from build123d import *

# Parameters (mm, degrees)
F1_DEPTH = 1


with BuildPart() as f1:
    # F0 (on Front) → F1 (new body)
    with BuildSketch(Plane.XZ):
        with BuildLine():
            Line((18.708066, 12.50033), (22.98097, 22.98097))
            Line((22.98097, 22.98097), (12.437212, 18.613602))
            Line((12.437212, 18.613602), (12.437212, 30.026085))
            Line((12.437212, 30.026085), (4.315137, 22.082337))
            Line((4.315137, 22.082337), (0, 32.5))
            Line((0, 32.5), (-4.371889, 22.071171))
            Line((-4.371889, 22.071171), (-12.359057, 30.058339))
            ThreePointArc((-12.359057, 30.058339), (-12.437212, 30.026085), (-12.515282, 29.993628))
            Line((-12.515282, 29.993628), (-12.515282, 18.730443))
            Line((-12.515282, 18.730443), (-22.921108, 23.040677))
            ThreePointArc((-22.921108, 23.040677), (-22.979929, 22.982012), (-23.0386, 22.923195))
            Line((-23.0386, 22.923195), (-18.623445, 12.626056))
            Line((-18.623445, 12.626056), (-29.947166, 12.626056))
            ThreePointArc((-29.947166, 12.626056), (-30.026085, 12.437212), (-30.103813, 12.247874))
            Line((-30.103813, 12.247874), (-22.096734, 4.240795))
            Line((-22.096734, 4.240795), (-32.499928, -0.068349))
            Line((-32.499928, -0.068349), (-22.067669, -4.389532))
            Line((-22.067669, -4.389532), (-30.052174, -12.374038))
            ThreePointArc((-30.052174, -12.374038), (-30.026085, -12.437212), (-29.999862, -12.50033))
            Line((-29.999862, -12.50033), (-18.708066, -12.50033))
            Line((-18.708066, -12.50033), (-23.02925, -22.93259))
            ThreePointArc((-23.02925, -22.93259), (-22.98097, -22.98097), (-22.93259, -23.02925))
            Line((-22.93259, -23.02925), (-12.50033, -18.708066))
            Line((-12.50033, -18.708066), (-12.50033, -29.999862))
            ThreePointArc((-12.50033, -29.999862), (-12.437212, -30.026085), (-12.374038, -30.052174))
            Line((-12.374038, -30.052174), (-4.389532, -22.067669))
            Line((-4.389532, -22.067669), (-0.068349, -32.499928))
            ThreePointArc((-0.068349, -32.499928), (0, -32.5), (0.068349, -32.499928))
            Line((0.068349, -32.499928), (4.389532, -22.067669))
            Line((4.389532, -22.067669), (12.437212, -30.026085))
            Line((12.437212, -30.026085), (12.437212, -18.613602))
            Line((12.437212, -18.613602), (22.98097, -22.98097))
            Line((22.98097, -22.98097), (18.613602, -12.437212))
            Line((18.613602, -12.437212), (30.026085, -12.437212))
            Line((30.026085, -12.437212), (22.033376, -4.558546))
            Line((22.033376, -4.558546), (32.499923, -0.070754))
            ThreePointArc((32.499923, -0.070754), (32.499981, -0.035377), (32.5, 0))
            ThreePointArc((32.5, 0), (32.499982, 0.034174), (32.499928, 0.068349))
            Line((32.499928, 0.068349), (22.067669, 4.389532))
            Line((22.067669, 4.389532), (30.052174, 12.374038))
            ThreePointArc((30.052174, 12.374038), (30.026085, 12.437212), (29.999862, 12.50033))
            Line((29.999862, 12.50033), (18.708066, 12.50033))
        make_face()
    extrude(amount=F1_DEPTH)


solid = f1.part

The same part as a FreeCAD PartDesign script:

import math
import FreeCAD as App
import Part
import Sketcher

V = App.Vector

doc = App.newDocument("Part")
body = doc.addObject("PartDesign::Body", "Body")

sketch1 = body.newObject("Sketcher::SketchObject", "Sketch")
sketch1.AttachmentSupport = (doc.getObject("XZ_Plane"), [""])
sketch1.MapMode = "FlatFace"
sketch1.addGeometry(Part.LineSegment(V(18.708066, 12.50033, 0), V(22.98097, 22.98097, 0)), False)
sketch1.addGeometry(Part.LineSegment(V(22.98097, 22.98097, 0), V(12.437212, 18.613602, 0)), False)
sketch1.addGeometry(Part.LineSegment(V(12.437212, 18.613602, 0), V(12.437212, 30.026085, 0)), False)
sketch1.addGeometry(Part.LineSegment(V(12.437212, 30.026085, 0), V(4.315137, 22.082337, 0)), False)
sketch1.addGeometry(Part.LineSegment(V(4.315137, 22.082337, 0), V(0, 32.5, 0)), False)
sketch1.addGeometry(Part.LineSegment(V(0, 32.5, 0), V(-4.371889, 22.071171, 0)), False)
sketch1.addGeometry(Part.LineSegment(V(-4.371889, 22.071171, 0), V(-12.359057, 30.058339, 0)), False)
sketch1.addGeometry(Part.ArcOfCircle(Part.Circle(V(-0.006885, 0.016847, 0), V(0, 0, 1), 32.481801), math.radians(112.351014), math.radians(112.64929)), False)
sketch1.addGeometry(Part.LineSegment(V(-12.515282, 29.993628, 0), V(-12.515282, 18.730443, 0)), False)
sketch1.addGeometry(Part.LineSegment(V(-12.515282, 18.730443, 0), V(-22.921108, 23.040677, 0)), False)
sketch1.addGeometry(Part.ArcOfCircle(Part.Circle(V(-0.127899, 0.128035, 0), V(0, 0, 1), 32.319027), math.radians(134.850283), math.radians(135.14484)), False)
sketch1.addGeometry(Part.LineSegment(V(-23.0386, 22.923195, 0), V(-18.623445, 12.626056, 0)), False)
sketch1.addGeometry(Part.LineSegment(V(-18.623445, 12.626056, 0), V(-29.947166, 12.626056, 0)), False)
sketch1.addGeometry(Part.ArcOfCircle(Part.Circle(V(-0.010471, 0.004426, 0), V(0, 0, 1), 32.488633), math.radians(157.139192), math.radians(157.861096)), False)
sketch1.addGeometry(Part.LineSegment(V(-30.103813, 12.247874, 0), V(-22.096734, 4.240795, 0)), False)
sketch1.addGeometry(Part.LineSegment(V(-22.096734, 4.240795, 0), V(-32.499928, -0.068349, 0)), False)
sketch1.addGeometry(Part.LineSegment(V(-32.499928, -0.068349, 0), V(-22.067669, -4.389532, 0)), False)
sketch1.addGeometry(Part.LineSegment(V(-22.067669, -4.389532, 0), V(-30.052174, -12.374038, 0)), False)
sketch1.addGeometry(Part.ArcOfCircle(Part.Circle(V(-0.308037, -0.12756, 0), V(0, 0, 1), 32.166596), math.radians(-157.62169), math.radians(-157.378201)), False)
sketch1.addGeometry(Part.LineSegment(V(-29.999862, -12.50033, 0), V(-18.708066, -12.50033, 0)), False)
sketch1.addGeometry(Part.LineSegment(V(-18.708066, -12.50033, 0), V(-23.02925, -22.93259, 0)), False)
sketch1.addGeometry(Part.ArcOfCircle(Part.Circle(V(0.376944, 0.376944, 0), V(0, 0, 1), 33.033079), math.radians(-135.118551), math.radians(-134.881449)), False)
sketch1.addGeometry(Part.LineSegment(V(-22.93259, -23.02925, 0), V(-12.50033, -18.708066, 0)), False)
sketch1.addGeometry(Part.LineSegment(V(-12.50033, -18.708066, 0), V(-12.50033, -29.999862, 0)), False)
sketch1.addGeometry(Part.ArcOfCircle(Part.Circle(V(-0.12756, -0.308037, 0), V(0, 0, 1), 32.166596), math.radians(-112.621799), math.radians(-112.37831)), False)
sketch1.addGeometry(Part.LineSegment(V(-12.374038, -30.052174, 0), V(-4.389532, -22.067669, 0)), False)
sketch1.addGeometry(Part.LineSegment(V(-4.389532, -22.067669, 0), V(-0.068349, -32.499928, 0)), False)
sketch1.addGeometry(Part.ArcOfCircle(Part.Circle(V(0, -0.058396, 0), V(0, 0, 1), 32.441604), math.radians(-90.120713), math.radians(-89.879287)), False)
sketch1.addGeometry(Part.LineSegment(V(0.068349, -32.499928, 0), V(4.389532, -22.067669, 0)), False)
sketch1.addGeometry(Part.LineSegment(V(4.389532, -22.067669, 0), V(12.437212, -30.026085, 0)), False)
sketch1.addGeometry(Part.LineSegment(V(12.437212, -30.026085, 0), V(12.437212, -18.613602, 0)), False)
sketch1.addGeometry(Part.LineSegment(V(12.437212, -18.613602, 0), V(22.98097, -22.98097, 0)), False)
sketch1.addGeometry(Part.LineSegment(V(22.98097, -22.98097, 0), V(18.613602, -12.437212, 0)), False)
sketch1.addGeometry(Part.LineSegment(V(18.613602, -12.437212, 0), V(30.026085, -12.437212, 0)), False)
sketch1.addGeometry(Part.LineSegment(V(30.026085, -12.437212, 0), V(22.033376, -4.558546, 0)), False)
sketch1.addGeometry(Part.LineSegment(V(22.033376, -4.558546, 0), V(32.499923, -0.070754, 0)), False)
sketch1.addGeometry(Part.ArcOfCircle(Part.Circle(V(0.409366, -0.000454, 0), V(0, 0, 1), 32.090634), math.radians(-0.125517), math.radians(0.00081)), False)
sketch1.addGeometry(Part.ArcOfCircle(Part.Circle(V(0.05742, -0.000001, 0), V(0, 0, 1), 32.44258), math.radians(0.000002), math.radians(0.120711)), False)
sketch1.addGeometry(Part.LineSegment(V(32.499928, 0.068349, 0), V(22.067669, 4.389532, 0)), False)
sketch1.addGeometry(Part.LineSegment(V(22.067669, 4.389532, 0), V(30.052174, 12.374038, 0)), False)
sketch1.addGeometry(Part.ArcOfCircle(Part.Circle(V(0.308037, 0.12756, 0), V(0, 0, 1), 32.166596), math.radians(22.37831), math.radians(22.621799)), False)
sketch1.addGeometry(Part.LineSegment(V(29.999862, 12.50033, 0), V(18.708066, 12.50033, 0)), False)
sketch1.addConstraint(Sketcher.Constraint("Coincident", 0, 2, 1, 1))
sketch1.addConstraint(Sketcher.Constraint("Coincident", 1, 2, 2, 1))
sketch1.addConstraint(Sketcher.Constraint("Coincident", 2, 2, 3, 1))
sketch1.addConstraint(Sketcher.Constraint("Coincident", 3, 2, 4, 1))
sketch1.addConstraint(Sketcher.Constraint("Coincident", 4, 2, 5, 1))
sketch1.addConstraint(Sketcher.Constraint("Coincident", 5, 2, 6, 1))
sketch1.addConstraint(Sketcher.Constraint("Coincident", 6, 2, 7, 1))
sketch1.addConstraint(Sketcher.Constraint("Coincident", 7, 2, 8, 1))
sketch1.addConstraint(Sketcher.Constraint("Coincident", 8, 2, 9, 1))
sketch1.addConstraint(Sketcher.Constraint("Coincident", 9, 2, 10, 1))
sketch1.addConstraint(Sketcher.Constraint("Coincident", 10, 2, 11, 1))
sketch1.addConstraint(Sketcher.Constraint("Coincident", 11, 2, 12, 1))
sketch1.addConstraint(Sketcher.Constraint("Coincident", 12, 2, 13, 1))
sketch1.addConstraint(Sketcher.Constraint("Coincident", 13, 2, 14, 1))
sketch1.addConstraint(Sketcher.Constraint("Coincident", 14, 2, 15, 1))
sketch1.addConstraint(Sketcher.Constraint("Coincident", 15, 2, 16, 1))
sketch1.addConstraint(Sketcher.Constraint("Coincident", 16, 2, 17, 1))
sketch1.addConstraint(Sketcher.Constraint("Coincident", 17, 2, 18, 1))
sketch1.addConstraint(Sketcher.Constraint("Coincident", 18, 2, 19, 1))
sketch1.addConstraint(Sketcher.Constraint("Coincident", 19, 2, 20, 1))
sketch1.addConstraint(Sketcher.Constraint("Coincident", 20, 2, 21, 1))
sketch1.addConstraint(Sketcher.Constraint("Coincident", 21, 2, 22, 1))
sketch1.addConstraint(Sketcher.Constraint("Coincident", 22, 2, 23, 1))
sketch1.addConstraint(Sketcher.Constraint("Coincident", 23, 2, 24, 1))
sketch1.addConstraint(Sketcher.Constraint("Coincident", 24, 2, 25, 1))
sketch1.addConstraint(Sketcher.Constraint("Coincident", 25, 2, 26, 1))
sketch1.addConstraint(Sketcher.Constraint("Coincident", 26, 2, 27, 1))
sketch1.addConstraint(Sketcher.Constraint("Coincident", 27, 2, 28, 1))
sketch1.addConstraint(Sketcher.Constraint("Coincident", 28, 2, 29, 1))
sketch1.addConstraint(Sketcher.Constraint("Coincident", 29, 2, 30, 1))
sketch1.addConstraint(Sketcher.Constraint("Coincident", 30, 2, 31, 1))
sketch1.addConstraint(Sketcher.Constraint("Coincident", 31, 2, 32, 1))
sketch1.addConstraint(Sketcher.Constraint("Coincident", 32, 2, 33, 1))
sketch1.addConstraint(Sketcher.Constraint("Coincident", 33, 2, 34, 1))
sketch1.addConstraint(Sketcher.Constraint("Coincident", 34, 2, 35, 1))
sketch1.addConstraint(Sketcher.Constraint("Coincident", 35, 2, 36, 1))
sketch1.addConstraint(Sketcher.Constraint("Coincident", 36, 2, 37, 1))
sketch1.addConstraint(Sketcher.Constraint("Coincident", 37, 2, 38, 1))
sketch1.addConstraint(Sketcher.Constraint("Coincident", 38, 2, 39, 1))
sketch1.addConstraint(Sketcher.Constraint("Coincident", 39, 2, 40, 1))
sketch1.addConstraint(Sketcher.Constraint("Coincident", 40, 2, 41, 1))
sketch1.addConstraint(Sketcher.Constraint("Coincident", 41, 2, 0, 1))
sketch1.addConstraint(Sketcher.Constraint("Vertical", 2))
sketch1.addConstraint(Sketcher.Constraint("Vertical", 8))
sketch1.addConstraint(Sketcher.Constraint("Horizontal", 12))
sketch1.addConstraint(Sketcher.Constraint("Horizontal", 19))
sketch1.addConstraint(Sketcher.Constraint("Vertical", 23))
sketch1.addConstraint(Sketcher.Constraint("Vertical", 30))
sketch1.addConstraint(Sketcher.Constraint("Horizontal", 33))
sketch1.addConstraint(Sketcher.Constraint("Horizontal", 41))
sketch1.addConstraint(Sketcher.Constraint("PointOnObject", 27, 3, -2))
sketch1.addConstraint(Sketcher.Constraint("PointOnObject", 37, 3, -1))
sketch1.addConstraint(Sketcher.Constraint("PointOnObject", 4, 2, -2))
sketch1.addConstraint(Sketcher.Constraint("PointOnObject", 36, 2, -1))
sketch1.addConstraint(Sketcher.Constraint("DistanceY", -1, 1, 4, 2, 32.5))
sketch1.addConstraint(Sketcher.Constraint("DistanceX", -1, 1, 36, 2, 32.5))
sketch1.addConstraint(Sketcher.Constraint("Radius", 7, 32.481801))
sketch1.addConstraint(Sketcher.Constraint("Radius", 21, 33.033079))
sketch1.addConstraint(Sketcher.Constraint("Radius", 37, 32.44258))
sketch1.addConstraint(Sketcher.Constraint("Radius", 10, 32.319027))
sketch1.addConstraint(Sketcher.Constraint("Radius", 13, 32.488633))
sketch1.addConstraint(Sketcher.Constraint("Radius", 18, 32.166596))
sketch1.addConstraint(Sketcher.Constraint("Radius", 24, 32.166596))
sketch1.addConstraint(Sketcher.Constraint("Radius", 27, 32.441604))
sketch1.addConstraint(Sketcher.Constraint("Radius", 36, 32.090634))
sketch1.addConstraint(Sketcher.Constraint("Radius", 40, 32.166596))
sketch1.addConstraint(Sketcher.Constraint("DistanceX", 12, 2, 12, 1, 11.323721))
sketch1.addConstraint(Sketcher.Constraint("DistanceX", 10, 3, -1, 1, 0.127899))
sketch1.addConstraint(Sketcher.Constraint("DistanceY", -1, 1, 1, 2, 18.613602))
sketch1.addConstraint(Sketcher.Constraint("DistanceX", 10, 2, -1, 1, 23.0386))
sketch1.addConstraint(Sketcher.Constraint("DistanceY", 30, 2, -1, 1, 18.613602))
sketch1.addConstraint(Sketcher.Constraint("DistanceX", -1, 1, 32, 2, 18.613602))
sketch1.addConstraint(Sketcher.Constraint("DistanceY", 36, 3, 7, 3, 0.0173))
sketch1.addConstraint(Sketcher.Constraint("DistanceX", 40, 3, 3, 2, 4.0071))
sketch1.addConstraint(Sketcher.Constraint("DistanceX", 5, 2, 1, 2, 16.809101))
sketch1.addConstraint(Sketcher.Constraint("DistanceY", 14, 2, 10, 2, 18.6824))
sketch1.addConstraint(Sketcher.Constraint("DistanceX", 26, 2, 27, 2, 0.136698))
sketch1.addConstraint(Sketcher.Constraint("DistanceY", 31, 2, 28, 2, 0.913301))
sketch1.addConstraint(Sketcher.Constraint("Distance", 1, 11.412482))
sketch1.addConstraint(Sketcher.Constraint("Distance", 6, 11.295561))
sketch1.addConstraint(Sketcher.Constraint("Distance", 11, 11.203779))
sketch1.addConstraint(Sketcher.Constraint("Distance", 14, 11.32372))
sketch1.addConstraint(Sketcher.Constraint("Distance", 31, 11.412482))
sketch1.addConstraint(Sketcher.Constraint("Distance", 32, 11.412482))
sketch1.addConstraint(Sketcher.Constraint("DistanceX", 19, 1, 19, 2, 11.291796))
sketch1.addConstraint(Sketcher.Constraint("DistanceX", 33, 1, 33, 2, 11.412483))
sketch1.addConstraint(Sketcher.Constraint("DistanceX", 41, 2, 41, 1, 11.291796))
sketch1.addConstraint(Sketcher.Constraint("DistanceY", 2, 1, 2, 2, 11.412483))
sketch1.addConstraint(Sketcher.Constraint("DistanceY", 8, 2, 8, 1, 11.263185))
sketch1.addConstraint(Sketcher.Constraint("DistanceY", 23, 2, 23, 1, 11.291796))
sketch1.addConstraint(Sketcher.Constraint("DistanceY", 30, 1, 30, 2, 11.412483))
sketch1.addConstraint(Sketcher.Constraint("DistanceX", 13, 3, -1, 1, 0.010471))
sketch1.addConstraint(Sketcher.Constraint("DistanceY", 18, 3, -1, 1, 0.12756))
sketch1.addConstraint(Sketcher.Constraint("DistanceX", 24, 3, -1, 1, 0.12756))
sketch1.addConstraint(Sketcher.Constraint("DistanceY", -1, 1, 40, 3, 0.12756))
sketch1.addConstraint(Sketcher.Constraint("DistanceX", -1, 1, 0, 2, 22.98097))
sketch1.addConstraint(Sketcher.Constraint("DistanceY", -1, 1, 0, 2, 22.98097))
sketch1.addConstraint(Sketcher.Constraint("DistanceY", -1, 1, 5, 2, 22.071171))
sketch1.addConstraint(Sketcher.Constraint("DistanceY", -1, 1, 6, 2, 30.058339))
sketch1.addConstraint(Sketcher.Constraint("DistanceX", 7, 2, -1, 1, 12.515282))
sketch1.addConstraint(Sketcher.Constraint("DistanceX", 9, 2, -1, 1, 22.921108))
sketch1.addConstraint(Sketcher.Constraint("DistanceY", 15, 2, -1, 1, 0.068349))
sketch1.addConstraint(Sketcher.Constraint("DistanceX", 16, 2, -1, 1, 22.067669))
sketch1.addConstraint(Sketcher.Constraint("DistanceX", 18, 2, -1, 1, 29.999862))
sketch1.addConstraint(Sketcher.Constraint("DistanceY", 18, 2, -1, 1, 12.50033))
sketch1.addConstraint(Sketcher.Constraint("DistanceX", 20, 2, -1, 1, 23.02925))
sketch1.addConstraint(Sketcher.Constraint("DistanceY", 20, 2, -1, 1, 22.93259))
sketch1.addConstraint(Sketcher.Constraint("DistanceX", 21, 2, -1, 1, 22.93259))
sketch1.addConstraint(Sketcher.Constraint("DistanceX", 22, 2, -1, 1, 12.50033))
sketch1.addConstraint(Sketcher.Constraint("DistanceY", 23, 2, -1, 1, 29.999862))
sketch1.addConstraint(Sketcher.Constraint("DistanceX", 24, 2, -1, 1, 12.374038))
sketch1.addConstraint(Sketcher.Constraint("DistanceY", 25, 2, -1, 1, 22.067669))
sketch1.addConstraint(Sketcher.Constraint("DistanceX", 26, 2, -1, 1, 0.068349))
sketch1.addConstraint(Sketcher.Constraint("DistanceY", 28, 2, -1, 1, 22.067669))
sketch1.addConstraint(Sketcher.Constraint("DistanceX", -1, 1, 31, 2, 22.98097))
sketch1.addConstraint(Sketcher.Constraint("DistanceY", -1, 1, 37, 2, 0.068349))
sketch1.addConstraint(Sketcher.Constraint("DistanceX", -1, 1, 38, 2, 22.067669))
sketch1.addConstraint(Sketcher.Constraint("DistanceX", -1, 1, 40, 2, 29.999862))
sketch1.addConstraint(Sketcher.Constraint("DistanceY", -1, 1, 40, 2, 12.50033))
sketch1.addConstraint(Sketcher.Constraint("DistanceY", 7, 3, 10, 3, 0.111189))
sketch1.addConstraint(Sketcher.Constraint("DistanceY", 13, 3, 7, 3, 0.012421))
sketch1.addConstraint(Sketcher.Constraint("DistanceX", 7, 3, 21, 3, 0.383829))
sketch1.addConstraint(Sketcher.Constraint("DistanceY", 13, 3, 21, 3, 0.372518))
sketch1.addConstraint(Sketcher.Constraint("DistanceY", 27, 3, 13, 3, 0.062822))
sketch1.addConstraint(Sketcher.Constraint("DistanceY", 3, 2, 7, 2, 7.911291))
sketch1.addConstraint(Sketcher.Constraint("DistanceY", 13, 2, 10, 2, 10.675321))
sketch1.addConstraint(Sketcher.Constraint("DistanceX", 15, 2, 12, 2, 2.552762))
sketch1.addConstraint(Sketcher.Constraint("DistanceY", 16, 2, 11, 2, 17.015588))
sketch1.addConstraint(Sketcher.Constraint("DistanceY", 17, 2, 15, 2, 12.305689))
sketch1.addConstraint(Sketcher.Constraint("DistanceX", 21, 2, 25, 2, 18.543058))
sketch1.addConstraint(Sketcher.Constraint("DistanceX", 26, 2, 28, 2, 4.457881))
sketch1.addConstraint(Sketcher.Constraint("DistanceX", 34, 2, 33, 2, 7.992709))
sketch1.addConstraint(Sketcher.Constraint("DistanceY", 34, 2, 35, 2, 4.487792))
sketch1.addConstraint(Sketcher.Constraint("DistanceY", 38, 2, 1, 2, 14.22407))
sketch1.addConstraint(Sketcher.Constraint("DistanceY", 37, 2, 39, 2, 12.305689))
sketch1.addConstraint(Sketcher.Constraint("Distance", 34, 11.223047))
pad1 = body.newObject("PartDesign::Pad", "Pad")
pad1.Profile = sketch1
pad1.Length = 1

doc.recompute()
